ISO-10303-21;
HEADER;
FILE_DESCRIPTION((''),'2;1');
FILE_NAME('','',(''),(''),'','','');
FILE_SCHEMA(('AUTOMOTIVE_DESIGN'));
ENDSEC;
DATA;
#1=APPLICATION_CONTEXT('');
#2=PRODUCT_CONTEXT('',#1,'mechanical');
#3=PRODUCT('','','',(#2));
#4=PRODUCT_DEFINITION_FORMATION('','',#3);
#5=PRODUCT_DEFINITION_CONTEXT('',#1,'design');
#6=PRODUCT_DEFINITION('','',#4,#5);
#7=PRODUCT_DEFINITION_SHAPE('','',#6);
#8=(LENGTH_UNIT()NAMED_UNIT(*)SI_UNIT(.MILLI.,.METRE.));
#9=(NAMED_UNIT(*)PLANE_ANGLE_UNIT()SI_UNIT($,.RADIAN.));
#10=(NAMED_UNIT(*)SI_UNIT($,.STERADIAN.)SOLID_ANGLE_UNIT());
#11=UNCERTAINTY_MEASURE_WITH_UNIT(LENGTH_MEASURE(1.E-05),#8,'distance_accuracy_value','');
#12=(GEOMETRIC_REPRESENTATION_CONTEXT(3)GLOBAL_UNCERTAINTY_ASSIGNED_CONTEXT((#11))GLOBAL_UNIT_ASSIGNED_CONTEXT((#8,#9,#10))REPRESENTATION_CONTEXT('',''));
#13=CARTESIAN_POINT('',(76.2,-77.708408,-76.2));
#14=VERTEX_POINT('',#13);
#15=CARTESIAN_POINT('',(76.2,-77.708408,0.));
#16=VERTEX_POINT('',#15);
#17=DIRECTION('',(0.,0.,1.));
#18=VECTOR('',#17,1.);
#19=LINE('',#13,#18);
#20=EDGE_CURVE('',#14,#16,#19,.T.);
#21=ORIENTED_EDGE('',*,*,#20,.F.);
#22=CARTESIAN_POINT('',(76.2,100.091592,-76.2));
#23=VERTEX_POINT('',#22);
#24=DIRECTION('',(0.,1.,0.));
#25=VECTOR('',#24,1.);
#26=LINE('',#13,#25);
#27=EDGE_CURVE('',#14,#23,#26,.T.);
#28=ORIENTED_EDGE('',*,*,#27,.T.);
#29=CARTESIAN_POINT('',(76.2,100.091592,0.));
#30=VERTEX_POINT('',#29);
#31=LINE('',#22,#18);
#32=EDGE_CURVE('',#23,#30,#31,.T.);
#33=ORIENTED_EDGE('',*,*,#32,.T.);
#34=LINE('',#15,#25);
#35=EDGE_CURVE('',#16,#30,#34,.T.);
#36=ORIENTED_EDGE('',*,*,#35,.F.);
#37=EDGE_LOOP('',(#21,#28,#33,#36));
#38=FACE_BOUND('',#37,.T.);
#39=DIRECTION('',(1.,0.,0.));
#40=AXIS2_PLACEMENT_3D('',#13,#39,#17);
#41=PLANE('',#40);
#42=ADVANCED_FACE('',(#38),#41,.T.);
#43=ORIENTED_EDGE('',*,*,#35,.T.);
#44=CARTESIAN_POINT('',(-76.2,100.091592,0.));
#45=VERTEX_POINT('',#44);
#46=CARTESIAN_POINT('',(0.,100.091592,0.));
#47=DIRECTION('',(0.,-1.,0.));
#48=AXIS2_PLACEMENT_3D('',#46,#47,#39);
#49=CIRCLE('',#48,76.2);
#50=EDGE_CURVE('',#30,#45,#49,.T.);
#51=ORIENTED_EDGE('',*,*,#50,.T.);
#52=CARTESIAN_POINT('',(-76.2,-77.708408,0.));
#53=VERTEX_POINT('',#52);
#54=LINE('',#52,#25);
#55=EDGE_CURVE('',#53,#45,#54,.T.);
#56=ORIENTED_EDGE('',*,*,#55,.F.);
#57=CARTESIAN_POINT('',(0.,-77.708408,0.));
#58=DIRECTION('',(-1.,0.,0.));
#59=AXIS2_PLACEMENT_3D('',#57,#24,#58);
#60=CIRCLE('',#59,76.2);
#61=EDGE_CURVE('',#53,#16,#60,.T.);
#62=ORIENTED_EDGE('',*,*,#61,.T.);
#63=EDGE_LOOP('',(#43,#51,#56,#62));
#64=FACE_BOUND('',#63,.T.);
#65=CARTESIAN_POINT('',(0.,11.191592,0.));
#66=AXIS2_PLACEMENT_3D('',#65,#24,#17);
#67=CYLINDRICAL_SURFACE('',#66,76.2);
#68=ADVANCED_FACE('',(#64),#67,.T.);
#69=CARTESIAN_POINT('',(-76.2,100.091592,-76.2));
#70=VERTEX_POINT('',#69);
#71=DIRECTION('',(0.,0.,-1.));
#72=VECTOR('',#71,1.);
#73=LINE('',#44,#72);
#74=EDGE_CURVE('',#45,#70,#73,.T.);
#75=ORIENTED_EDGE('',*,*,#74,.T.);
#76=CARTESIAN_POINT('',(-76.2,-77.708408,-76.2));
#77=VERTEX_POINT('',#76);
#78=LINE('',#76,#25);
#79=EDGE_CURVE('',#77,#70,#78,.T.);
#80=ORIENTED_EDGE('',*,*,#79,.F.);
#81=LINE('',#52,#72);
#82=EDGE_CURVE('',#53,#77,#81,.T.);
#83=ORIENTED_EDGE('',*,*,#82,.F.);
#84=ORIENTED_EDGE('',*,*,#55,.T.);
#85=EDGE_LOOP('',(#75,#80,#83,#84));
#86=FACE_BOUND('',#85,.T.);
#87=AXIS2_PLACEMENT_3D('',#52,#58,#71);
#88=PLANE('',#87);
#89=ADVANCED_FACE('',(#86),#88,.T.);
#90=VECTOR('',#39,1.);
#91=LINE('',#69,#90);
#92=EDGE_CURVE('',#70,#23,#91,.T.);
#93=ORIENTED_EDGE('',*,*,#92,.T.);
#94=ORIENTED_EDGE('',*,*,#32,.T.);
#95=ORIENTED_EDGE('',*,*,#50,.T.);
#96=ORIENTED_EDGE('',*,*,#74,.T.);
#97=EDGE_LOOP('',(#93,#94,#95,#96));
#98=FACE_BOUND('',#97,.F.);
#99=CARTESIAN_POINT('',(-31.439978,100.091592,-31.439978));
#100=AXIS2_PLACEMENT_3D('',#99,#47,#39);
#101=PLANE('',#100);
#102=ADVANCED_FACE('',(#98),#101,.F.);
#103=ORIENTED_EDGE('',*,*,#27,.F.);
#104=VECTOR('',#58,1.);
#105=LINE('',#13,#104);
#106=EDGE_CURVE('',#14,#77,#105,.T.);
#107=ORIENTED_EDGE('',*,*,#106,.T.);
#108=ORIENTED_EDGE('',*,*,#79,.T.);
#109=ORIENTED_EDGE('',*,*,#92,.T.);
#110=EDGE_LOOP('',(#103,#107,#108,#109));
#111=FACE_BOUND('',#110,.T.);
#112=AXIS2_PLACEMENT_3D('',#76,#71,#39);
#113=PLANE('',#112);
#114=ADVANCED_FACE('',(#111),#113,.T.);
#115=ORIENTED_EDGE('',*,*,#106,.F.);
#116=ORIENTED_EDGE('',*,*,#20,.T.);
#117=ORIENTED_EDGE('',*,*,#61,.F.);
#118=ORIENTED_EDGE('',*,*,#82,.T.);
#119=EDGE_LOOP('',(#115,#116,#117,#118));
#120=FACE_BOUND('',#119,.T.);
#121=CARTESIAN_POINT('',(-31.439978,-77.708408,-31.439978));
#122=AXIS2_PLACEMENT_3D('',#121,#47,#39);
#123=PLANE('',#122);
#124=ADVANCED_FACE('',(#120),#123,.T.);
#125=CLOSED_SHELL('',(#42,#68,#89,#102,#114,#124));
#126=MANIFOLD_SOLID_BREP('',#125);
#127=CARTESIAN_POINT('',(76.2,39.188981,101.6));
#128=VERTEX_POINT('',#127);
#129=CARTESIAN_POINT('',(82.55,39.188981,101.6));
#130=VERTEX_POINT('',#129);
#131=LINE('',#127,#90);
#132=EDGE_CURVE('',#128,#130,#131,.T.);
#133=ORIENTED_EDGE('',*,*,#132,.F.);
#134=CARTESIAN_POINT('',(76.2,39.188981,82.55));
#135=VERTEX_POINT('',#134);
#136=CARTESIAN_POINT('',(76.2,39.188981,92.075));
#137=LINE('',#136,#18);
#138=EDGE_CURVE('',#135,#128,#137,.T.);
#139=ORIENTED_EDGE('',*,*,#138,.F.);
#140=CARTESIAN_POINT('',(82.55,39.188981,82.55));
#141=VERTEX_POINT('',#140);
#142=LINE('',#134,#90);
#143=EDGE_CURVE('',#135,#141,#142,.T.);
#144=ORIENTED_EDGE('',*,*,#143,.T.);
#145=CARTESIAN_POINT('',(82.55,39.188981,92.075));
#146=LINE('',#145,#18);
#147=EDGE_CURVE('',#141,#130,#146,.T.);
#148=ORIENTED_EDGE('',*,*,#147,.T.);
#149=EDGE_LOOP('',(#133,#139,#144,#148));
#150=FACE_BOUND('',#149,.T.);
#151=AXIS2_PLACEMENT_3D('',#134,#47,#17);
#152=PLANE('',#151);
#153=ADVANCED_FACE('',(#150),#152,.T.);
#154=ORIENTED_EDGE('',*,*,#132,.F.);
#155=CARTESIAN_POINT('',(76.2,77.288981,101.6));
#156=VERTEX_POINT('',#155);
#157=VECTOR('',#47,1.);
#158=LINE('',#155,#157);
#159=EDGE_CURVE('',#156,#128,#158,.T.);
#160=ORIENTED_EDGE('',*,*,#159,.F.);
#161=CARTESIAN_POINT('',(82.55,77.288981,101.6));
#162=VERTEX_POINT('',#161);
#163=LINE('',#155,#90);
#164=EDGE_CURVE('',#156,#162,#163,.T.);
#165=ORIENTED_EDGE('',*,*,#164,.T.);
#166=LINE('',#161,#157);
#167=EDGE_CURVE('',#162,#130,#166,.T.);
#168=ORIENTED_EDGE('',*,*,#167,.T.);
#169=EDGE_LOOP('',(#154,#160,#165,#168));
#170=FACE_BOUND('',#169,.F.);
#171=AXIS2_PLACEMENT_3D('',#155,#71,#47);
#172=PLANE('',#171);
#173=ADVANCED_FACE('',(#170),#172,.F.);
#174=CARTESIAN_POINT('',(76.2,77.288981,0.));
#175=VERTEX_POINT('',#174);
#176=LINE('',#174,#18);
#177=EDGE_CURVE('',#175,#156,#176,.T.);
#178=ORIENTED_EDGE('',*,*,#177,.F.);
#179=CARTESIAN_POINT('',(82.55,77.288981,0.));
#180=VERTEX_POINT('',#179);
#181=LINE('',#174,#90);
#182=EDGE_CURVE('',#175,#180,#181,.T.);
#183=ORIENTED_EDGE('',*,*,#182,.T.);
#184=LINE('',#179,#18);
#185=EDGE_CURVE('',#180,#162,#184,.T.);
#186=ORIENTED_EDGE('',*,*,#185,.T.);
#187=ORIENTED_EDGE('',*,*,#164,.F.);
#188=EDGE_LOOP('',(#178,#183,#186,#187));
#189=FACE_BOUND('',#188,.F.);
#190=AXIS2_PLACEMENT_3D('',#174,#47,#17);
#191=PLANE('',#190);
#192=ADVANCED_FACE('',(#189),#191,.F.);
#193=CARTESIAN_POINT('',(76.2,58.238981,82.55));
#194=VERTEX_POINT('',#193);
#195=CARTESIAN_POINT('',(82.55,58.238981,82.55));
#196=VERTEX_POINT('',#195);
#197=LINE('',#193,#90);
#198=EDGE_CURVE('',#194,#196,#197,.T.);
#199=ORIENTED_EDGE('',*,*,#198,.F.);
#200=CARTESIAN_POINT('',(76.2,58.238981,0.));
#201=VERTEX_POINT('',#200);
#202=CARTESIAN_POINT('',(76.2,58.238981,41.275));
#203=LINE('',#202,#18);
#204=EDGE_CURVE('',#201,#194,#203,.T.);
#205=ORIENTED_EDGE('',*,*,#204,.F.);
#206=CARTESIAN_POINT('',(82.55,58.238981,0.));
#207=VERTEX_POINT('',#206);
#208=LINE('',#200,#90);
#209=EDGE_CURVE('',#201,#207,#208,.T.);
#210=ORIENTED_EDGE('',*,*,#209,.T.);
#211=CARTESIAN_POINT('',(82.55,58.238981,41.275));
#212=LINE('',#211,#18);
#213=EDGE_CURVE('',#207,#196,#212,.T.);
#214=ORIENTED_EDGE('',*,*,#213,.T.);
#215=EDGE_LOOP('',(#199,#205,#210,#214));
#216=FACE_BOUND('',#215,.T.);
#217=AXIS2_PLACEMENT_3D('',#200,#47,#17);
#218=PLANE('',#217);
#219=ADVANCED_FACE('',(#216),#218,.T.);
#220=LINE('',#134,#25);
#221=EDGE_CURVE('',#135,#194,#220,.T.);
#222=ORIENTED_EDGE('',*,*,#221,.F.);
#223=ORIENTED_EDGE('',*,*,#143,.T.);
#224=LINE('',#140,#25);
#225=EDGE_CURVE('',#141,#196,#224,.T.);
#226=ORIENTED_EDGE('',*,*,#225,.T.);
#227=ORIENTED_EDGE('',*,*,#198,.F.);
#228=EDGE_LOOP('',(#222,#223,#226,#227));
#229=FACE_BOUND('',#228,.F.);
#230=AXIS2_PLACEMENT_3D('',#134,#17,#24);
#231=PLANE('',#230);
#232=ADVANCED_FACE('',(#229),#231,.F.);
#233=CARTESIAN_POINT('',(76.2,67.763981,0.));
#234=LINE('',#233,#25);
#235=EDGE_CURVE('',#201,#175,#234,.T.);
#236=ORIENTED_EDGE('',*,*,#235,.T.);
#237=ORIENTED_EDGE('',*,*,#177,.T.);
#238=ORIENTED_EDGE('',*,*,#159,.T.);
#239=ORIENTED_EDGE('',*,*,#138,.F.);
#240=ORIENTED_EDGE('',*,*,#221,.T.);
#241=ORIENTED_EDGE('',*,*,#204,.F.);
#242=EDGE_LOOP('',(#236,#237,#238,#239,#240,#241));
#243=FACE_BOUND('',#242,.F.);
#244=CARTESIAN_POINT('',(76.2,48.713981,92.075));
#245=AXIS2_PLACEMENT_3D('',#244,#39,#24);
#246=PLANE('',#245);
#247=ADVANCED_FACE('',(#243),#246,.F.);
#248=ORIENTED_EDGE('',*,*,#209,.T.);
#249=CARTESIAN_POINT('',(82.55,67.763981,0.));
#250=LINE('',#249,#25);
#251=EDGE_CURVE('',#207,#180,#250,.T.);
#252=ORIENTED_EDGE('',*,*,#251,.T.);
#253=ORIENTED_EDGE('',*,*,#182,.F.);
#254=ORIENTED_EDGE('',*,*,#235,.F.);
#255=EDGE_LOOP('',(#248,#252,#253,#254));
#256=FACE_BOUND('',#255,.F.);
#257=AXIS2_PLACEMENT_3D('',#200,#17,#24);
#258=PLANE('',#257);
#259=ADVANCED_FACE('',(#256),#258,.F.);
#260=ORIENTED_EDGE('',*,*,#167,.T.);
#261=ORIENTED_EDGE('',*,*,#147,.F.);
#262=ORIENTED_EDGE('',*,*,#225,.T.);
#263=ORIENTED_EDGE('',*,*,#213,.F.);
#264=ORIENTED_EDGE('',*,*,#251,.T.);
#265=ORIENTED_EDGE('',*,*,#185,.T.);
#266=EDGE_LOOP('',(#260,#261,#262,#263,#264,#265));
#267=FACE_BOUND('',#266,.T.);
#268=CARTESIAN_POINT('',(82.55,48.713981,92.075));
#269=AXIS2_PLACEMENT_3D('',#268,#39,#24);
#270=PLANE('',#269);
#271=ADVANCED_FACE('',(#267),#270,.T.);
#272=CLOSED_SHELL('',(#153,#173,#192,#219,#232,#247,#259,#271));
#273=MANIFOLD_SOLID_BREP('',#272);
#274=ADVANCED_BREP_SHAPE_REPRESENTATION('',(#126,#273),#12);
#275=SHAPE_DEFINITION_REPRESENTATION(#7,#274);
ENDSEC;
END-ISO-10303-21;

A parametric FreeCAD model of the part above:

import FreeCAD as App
import Part
import Sketcher
Q = App.Units.Quantity


def add_polygon(sketch, points):
    """Adds a closed chain of lines whose ends are joined by coincident constraints."""
    first, n = sketch.GeometryCount, len(points)
    for a, b in zip(points, points[1:] + points[:1]):
        sketch.addGeometry(Part.LineSegment(App.Vector(*a, 0), App.Vector(*b, 0)), False)
    for i in range(n):
        sketch.addConstraint(Sketcher.Constraint("Coincident", first + i, 2, first + (i + 1) % n, 1))

doc = App.newDocument("Part")
params = doc.addObject("Spreadsheet::Sheet", "Params")
for row, (alias, value) in enumerate([
    ("sketch1_width", "7 in"),
    ("sketch1_height", "3 in"),
    ("revolution_angle", "360 deg"),
    ("sketch2_width", "6 in"),
    ("sketch2_height", "3 in"),
    ("pad1_length", "7 in"),
    ("sketch3_height", "4 in"),
    ("sketch3_width", "1.5 in"),
    ("pad2_length", "0.25 in"),
], start=1):
    params.set(f"A{row}", alias)
    params.set(f"B{row}", "=" + value)
    params.setAlias(f"B{row}", alias)

body = doc.addObject("PartDesign::Body", "Body")

sketch1 = body.newObject("Sketcher::SketchObject", "Sketch")
sketch1.AttachmentSupport = (doc.getObject("YZ_Plane"), [""])
sketch1.MapMode = "FlatFace"
add_polygon(sketch1, [(-78, 76), (-78, 0), (100, 0), (100, 76)])
sketch1.addConstraint([
    Sketcher.Constraint("Vertical", 0),
    Sketcher.Constraint("Horizontal", 1),
    Sketcher.Constraint("Vertical", 2),
    Sketcher.Constraint("Horizontal", 3),
    Sketcher.Constraint("PointOnObject", 0, 2, -1),
    Sketcher.Constraint("DistanceX", 1, 1, 1, 2, Q("7 in")),
    Sketcher.Constraint("DistanceY", 0, 2, 0, 1, Q("3 in")),
    Sketcher.Constraint("DistanceX", 0, 2, -1, 1, 77.708408),
])
sketch1.setExpression("Constraints[9]", "Params.sketch1_width")
sketch1.setExpression("Constraints[10]", "Params.sketch1_height")
revolution = body.newObject("PartDesign::Revolution", "Revolution")
revolution.Profile = sketch1
revolution.ReferenceAxis = (sketch1, ["H_Axis"])
revolution.setExpression("Angle", "Params.revolution_angle")

sketch2 = body.newObject("Sketcher::SketchObject", "Sketch001")
sketch2.AttachmentSupport = (doc.getObject("XZ_Plane"), [""])
sketch2.MapMode = "FlatFace"
sketch2.AttachmentOffset = App.Placement(App.Vector(0, 0, 77.708408), App.Rotation())
add_polygon(sketch2, [(76, -76), (76, 0), (-76, 0), (-76, -76)])
sketch2.addConstraint([
    Sketcher.Constraint("Vertical", 0),
    Sketcher.Constraint("Horizontal", 1),
    Sketcher.Constraint("Vertical", 2),
    Sketcher.Constraint("Horizontal", 3),
    Sketcher.Constraint("Symmetric", 0, 2, 1, 2, -1, 1),
    Sketcher.Constraint("DistanceX", 1, 2, 1, 1, Q("6 in")),
    Sketcher.Constraint("DistanceY", 0, 1, 0, 2, Q("3 in")),
])
sketch2.setExpression("Constraints[9]", "Params.sketch2_width")
sketch2.setExpression("Constraints[10]", "Params.sketch2_height")
pad1 = body.newObject("PartDesign::Pad", "Pad")
pad1.Profile = sketch2
pad1.setExpression("Length", "Params.pad1_length")
pad1.Reversed = True
body2 = doc.addObject("PartDesign::Body", "Body001")

sketch3 = body2.newObject("Sketcher::SketchObject", "Sketch002")
sketch3.AttachmentSupport = (doc.getObject("YZ_Plane001"), [""])
sketch3.MapMode = "FlatFace"
sketch3.AttachmentOffset = App.Placement(App.Vector(0, 0, 3 * 25.4), App.Rotation())
add_polygon(sketch3, [(39, 102), (39, 83), (58, 83), (58, 0), (77, 0), (77, 102)])
sketch3.addConstraint([
    Sketcher.Constraint("Vertical", 0),
    Sketcher.Constraint("Horizontal", 1),
    Sketcher.Constraint("Vertical", 2),
    Sketcher.Constraint("Horizontal", 3),
    Sketcher.Constraint("Vertical", 4),
    Sketcher.Constraint("Horizontal", 5),
    Sketcher.Constraint("PointOnObject", 2, 2, -1),
    Sketcher.Constraint("Equal", 1, 3),
    Sketcher.Constraint("Equal", 3, 0),
    Sketcher.Constraint("DistanceY", 4, 1, 4, 2, Q("4 in")),
    Sketcher.Constraint("DistanceX", 5, 2, 5, 1, Q("1.5 in")),
    Sketcher.Constraint("DistanceX", -1, 1, 0, 2, 39.188981),
])
sketch3.setExpression("Constraints[15]", "Params.sketch3_height")
sketch3.setExpression("Constraints[16]", "Params.sketch3_width")
pad2 = body2.newObject("PartDesign::Pad", "Pad001")
pad2.Profile = sketch3
pad2.setExpression("Length", "Params.pad2_length")

doc.recompute()
